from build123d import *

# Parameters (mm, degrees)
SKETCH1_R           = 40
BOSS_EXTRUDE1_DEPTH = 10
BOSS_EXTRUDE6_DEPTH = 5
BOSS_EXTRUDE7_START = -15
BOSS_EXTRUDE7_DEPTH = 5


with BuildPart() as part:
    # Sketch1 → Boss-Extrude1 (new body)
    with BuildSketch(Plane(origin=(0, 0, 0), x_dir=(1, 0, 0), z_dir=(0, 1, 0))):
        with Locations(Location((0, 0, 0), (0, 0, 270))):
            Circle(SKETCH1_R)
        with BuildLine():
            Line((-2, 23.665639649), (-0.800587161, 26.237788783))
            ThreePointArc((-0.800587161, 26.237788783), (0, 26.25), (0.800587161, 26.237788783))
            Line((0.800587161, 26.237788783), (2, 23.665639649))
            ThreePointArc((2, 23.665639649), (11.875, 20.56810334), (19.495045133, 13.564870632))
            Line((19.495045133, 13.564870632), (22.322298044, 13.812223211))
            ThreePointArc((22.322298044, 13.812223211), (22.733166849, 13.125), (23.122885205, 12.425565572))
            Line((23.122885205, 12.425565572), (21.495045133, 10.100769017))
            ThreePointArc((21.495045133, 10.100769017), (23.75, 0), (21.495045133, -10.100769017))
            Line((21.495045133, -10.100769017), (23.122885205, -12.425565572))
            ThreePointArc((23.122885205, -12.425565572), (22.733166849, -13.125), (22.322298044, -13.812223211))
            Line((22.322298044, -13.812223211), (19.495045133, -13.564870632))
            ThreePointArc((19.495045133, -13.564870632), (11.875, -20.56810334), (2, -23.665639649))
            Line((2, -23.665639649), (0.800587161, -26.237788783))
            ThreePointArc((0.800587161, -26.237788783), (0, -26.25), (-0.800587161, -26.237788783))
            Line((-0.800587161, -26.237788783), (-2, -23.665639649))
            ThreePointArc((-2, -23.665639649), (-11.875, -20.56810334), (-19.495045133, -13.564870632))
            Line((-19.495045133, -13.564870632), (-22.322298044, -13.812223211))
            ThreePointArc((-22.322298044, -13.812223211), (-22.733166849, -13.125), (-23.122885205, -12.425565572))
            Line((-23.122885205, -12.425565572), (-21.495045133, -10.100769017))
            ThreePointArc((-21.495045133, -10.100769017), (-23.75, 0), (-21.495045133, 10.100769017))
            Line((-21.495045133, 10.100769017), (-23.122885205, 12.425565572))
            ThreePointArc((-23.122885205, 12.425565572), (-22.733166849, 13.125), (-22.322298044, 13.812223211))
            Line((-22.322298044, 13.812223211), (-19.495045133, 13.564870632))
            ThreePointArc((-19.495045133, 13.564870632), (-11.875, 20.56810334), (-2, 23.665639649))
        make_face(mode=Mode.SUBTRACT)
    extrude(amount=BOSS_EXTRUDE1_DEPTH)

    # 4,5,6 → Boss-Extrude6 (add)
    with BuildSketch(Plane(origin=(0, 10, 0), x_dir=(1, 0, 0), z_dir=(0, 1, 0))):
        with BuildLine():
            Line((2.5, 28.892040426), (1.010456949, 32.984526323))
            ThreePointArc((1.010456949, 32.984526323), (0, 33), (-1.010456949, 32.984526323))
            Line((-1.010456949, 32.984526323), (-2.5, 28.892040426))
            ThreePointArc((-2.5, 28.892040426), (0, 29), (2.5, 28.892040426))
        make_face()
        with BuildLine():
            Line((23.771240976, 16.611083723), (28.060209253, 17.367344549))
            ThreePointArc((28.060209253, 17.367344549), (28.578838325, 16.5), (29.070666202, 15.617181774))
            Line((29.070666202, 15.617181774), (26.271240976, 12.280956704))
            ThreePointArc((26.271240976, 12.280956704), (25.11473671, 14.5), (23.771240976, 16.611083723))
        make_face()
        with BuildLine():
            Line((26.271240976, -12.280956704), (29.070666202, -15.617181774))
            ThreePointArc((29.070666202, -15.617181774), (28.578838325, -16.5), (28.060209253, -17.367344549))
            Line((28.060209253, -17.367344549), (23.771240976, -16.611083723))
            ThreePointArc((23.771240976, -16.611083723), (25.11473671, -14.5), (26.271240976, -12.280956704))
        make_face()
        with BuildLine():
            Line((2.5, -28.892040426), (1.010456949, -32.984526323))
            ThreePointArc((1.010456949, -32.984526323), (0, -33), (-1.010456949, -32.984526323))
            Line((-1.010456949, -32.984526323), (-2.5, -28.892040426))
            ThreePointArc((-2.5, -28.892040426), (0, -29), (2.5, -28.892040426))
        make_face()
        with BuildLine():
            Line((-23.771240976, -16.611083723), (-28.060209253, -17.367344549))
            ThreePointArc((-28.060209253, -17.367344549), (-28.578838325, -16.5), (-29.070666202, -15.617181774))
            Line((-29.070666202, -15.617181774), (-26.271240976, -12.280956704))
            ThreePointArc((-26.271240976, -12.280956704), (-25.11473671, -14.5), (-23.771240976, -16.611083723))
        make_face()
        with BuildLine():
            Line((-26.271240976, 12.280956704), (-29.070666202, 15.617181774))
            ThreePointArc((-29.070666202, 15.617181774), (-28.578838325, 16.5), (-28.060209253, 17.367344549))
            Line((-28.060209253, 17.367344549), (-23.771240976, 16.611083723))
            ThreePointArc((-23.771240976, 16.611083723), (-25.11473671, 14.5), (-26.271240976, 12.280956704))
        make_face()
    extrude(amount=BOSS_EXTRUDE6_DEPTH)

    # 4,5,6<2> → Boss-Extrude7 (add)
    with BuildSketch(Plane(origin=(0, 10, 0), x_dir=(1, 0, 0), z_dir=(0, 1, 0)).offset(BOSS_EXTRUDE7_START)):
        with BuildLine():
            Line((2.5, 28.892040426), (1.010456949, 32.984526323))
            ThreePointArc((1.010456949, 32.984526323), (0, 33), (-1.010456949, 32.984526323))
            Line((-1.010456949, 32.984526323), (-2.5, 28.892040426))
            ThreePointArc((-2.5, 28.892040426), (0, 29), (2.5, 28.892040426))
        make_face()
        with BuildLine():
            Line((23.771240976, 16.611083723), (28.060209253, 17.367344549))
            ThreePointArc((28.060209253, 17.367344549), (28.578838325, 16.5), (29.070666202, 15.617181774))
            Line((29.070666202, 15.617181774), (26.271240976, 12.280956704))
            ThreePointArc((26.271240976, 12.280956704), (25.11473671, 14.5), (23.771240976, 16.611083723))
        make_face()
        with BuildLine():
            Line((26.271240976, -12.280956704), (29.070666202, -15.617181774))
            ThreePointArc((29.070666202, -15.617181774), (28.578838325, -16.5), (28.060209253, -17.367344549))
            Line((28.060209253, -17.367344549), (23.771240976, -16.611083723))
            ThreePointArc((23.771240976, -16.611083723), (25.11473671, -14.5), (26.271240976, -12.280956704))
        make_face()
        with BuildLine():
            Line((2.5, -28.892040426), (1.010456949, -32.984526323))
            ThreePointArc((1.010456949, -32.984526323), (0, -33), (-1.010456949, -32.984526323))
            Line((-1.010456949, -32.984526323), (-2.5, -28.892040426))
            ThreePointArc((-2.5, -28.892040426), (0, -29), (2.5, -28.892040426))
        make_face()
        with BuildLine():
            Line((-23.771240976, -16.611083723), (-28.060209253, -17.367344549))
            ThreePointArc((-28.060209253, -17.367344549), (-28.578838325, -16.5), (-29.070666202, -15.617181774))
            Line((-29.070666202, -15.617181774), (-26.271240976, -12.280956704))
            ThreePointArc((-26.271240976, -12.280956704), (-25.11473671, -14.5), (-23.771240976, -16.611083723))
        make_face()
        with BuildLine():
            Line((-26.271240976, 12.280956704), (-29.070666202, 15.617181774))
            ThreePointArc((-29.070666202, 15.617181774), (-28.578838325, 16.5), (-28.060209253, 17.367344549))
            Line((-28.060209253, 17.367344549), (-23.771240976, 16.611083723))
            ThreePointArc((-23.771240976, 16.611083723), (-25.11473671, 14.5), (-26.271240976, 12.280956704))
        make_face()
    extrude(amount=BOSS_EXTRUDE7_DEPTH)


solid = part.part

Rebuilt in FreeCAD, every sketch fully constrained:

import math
import FreeCAD as App
import Part
import Sketcher

V = App.Vector
Q = App.Units.Quantity

doc = App.newDocument("Part")
params = doc.addObject("Spreadsheet::Sheet", "Params")
for row, (alias, value) in enumerate([
    ("sketch1_diameter", "80 mm"),
    ("sketch1_radius", "23.75 mm"),
    ("sketch1_radius2", "26.250001 mm"),
    ("pad1_length", "10 mm"),
    ("sketch2_radius", "33 mm"),
    ("sketch2_radius2", "29 mm"),
    ("pad2_length", "5 mm"),
    ("sketch3_radius", "33 mm"),
    ("sketch3_radius2", "29 mm"),
    ("pad3_length", "5 mm"),
], start=1):
    params.set(f"A{row}", alias)
    params.set(f"B{row}", "=" + value)
    params.setAlias(f"B{row}", alias)

body = doc.addObject("PartDesign::Body", "Body")

# Sketch on XZ plane
sketch1 = doc.addObject("Sketcher::SketchObject", "Sketch")
body.addObject(sketch1)
sketch1.AttachmentSupport = (doc.XZ_Plane, [""])
sketch1.MapMode = "FlatFace"
sketch1.addGeometry([
    Part.Circle(V(0, 0, 0), V(0, 0, 1), 40),  # 0
    Part.ArcOfCircle(Part.Circle(V(0, 0, 0), V(0, 0, 1), 23.7), math.radians(-145), math.radians(-95)),  # 1
    Part.LineSegment(V(-2, -23.7, 0), V(-0.8, -26.2, 0)),  # 2
    Part.ArcOfCircle(Part.Circle(V(0, 0, 0), V(0, 0, 1), 26.3), math.radians(-91.75), math.radians(-88.25)),  # 3
    Part.LineSegment(V(0.8, -26.2, 0), V(2, -23.7, 0)),  # 4
    Part.ArcOfCircle(Part.Circle(V(0, 0, 0), V(0, 0, 1), 23.7), math.radians(-85), math.radians(-35)),  # 5
    Part.LineSegment(V(19.5, -13.6, 0), V(22.3, -13.8, 0)),  # 6
    Part.ArcOfCircle(Part.Circle(V(0, 0, 0), V(0, 0, 1), 26.3), math.radians(-31.75), math.radians(-28.25)),  # 7
    Part.LineSegment(V(23.1, -12.4, 0), V(21.5, -10.1, 0)),  # 8
    Part.ArcOfCircle(Part.Circle(V(0, 0, 0), V(0, 0, 1), 23.8), math.radians(-25), math.radians(25)),  # 9
    Part.LineSegment(V(21.5, 10.1, 0), V(23.1, 12.4, 0)),  # 10
    Part.ArcOfCircle(Part.Circle(V(0, 0, 0), V(0, 0, 1), 26.3), math.radians(28.25), math.radians(31.75)),  # 11
    Part.LineSegment(V(22.3, 13.8, 0), V(19.5, 13.6, 0)),  # 12
    Part.ArcOfCircle(Part.Circle(V(0, 0, 0), V(0, 0, 1), 23.7), math.radians(35), math.radians(85)),  # 13
    Part.LineSegment(V(2, 23.7, 0), V(0.8, 26.2, 0)),  # 14
    Part.ArcOfCircle(Part.Circle(V(0, 0, 0), V(0, 0, 1), 26.3), math.radians(88.25), math.radians(91.75)),  # 15
    Part.LineSegment(V(-0.8, 26.2, 0), V(-2, 23.7, 0)),  # 16
    Part.ArcOfCircle(Part.Circle(V(0, 0, 0), V(0, 0, 1), 23.7), math.radians(95), math.radians(145)),  # 17
    Part.LineSegment(V(-19.5, 13.6, 0), V(-22.3, 13.8, 0)),  # 18
    Part.ArcOfCircle(Part.Circle(V(0, 0, 0), V(0, 0, 1), 26.3), math.radians(148.25), math.radians(151.75)),  # 19
    Part.LineSegment(V(-23.1, 12.4, 0), V(-21.5, 10.1, 0)),  # 20
    Part.ArcOfCircle(Part.Circle(V(0, 0, 0), V(0, 0, 1), 23.8), math.radians(155), math.radians(205)),  # 21
    Part.LineSegment(V(-21.5, -10.1, 0), V(-23.1, -12.4, 0)),  # 22
    Part.ArcOfCircle(Part.Circle(V(0, 0, 0), V(0, 0, 1), 26.3), math.radians(-151.75), math.radians(-148.25)),  # 23
    Part.LineSegment(V(-22.3, -13.8, 0), V(-19.5, -13.6, 0)),  # 24
], False)
sketch1.addConstraint([
    Sketcher.Constraint("Coincident", 1, 2, 2, 1),
    Sketcher.Constraint("Coincident", 2, 2, 3, 1),
    Sketcher.Constraint("Coincident", 3, 2, 4, 1),
    Sketcher.Constraint("Coincident", 4, 2, 5, 1),
    Sketcher.Constraint("Coincident", 5, 2, 6, 1),
    Sketcher.Constraint("Coincident", 6, 2, 7, 1),
    Sketcher.Constraint("Coincident", 7, 2, 8, 1),
    Sketcher.Constraint("Coincident", 8, 2, 9, 1),
    Sketcher.Constraint("Coincident", 9, 2, 10, 1),
    Sketcher.Constraint("Coincident", 10, 2, 11, 1),
    Sketcher.Constraint("Coincident", 11, 2, 12, 1),
    Sketcher.Constraint("Coincident", 12, 2, 13, 1),
    Sketcher.Constraint("Coincident", 13, 2, 14, 1),
    Sketcher.Constraint("Coincident", 14, 2, 15, 1),
    Sketcher.Constraint("Coincident", 15, 2, 16, 1),
    Sketcher.Constraint("Coincident", 16, 2, 17, 1),
    Sketcher.Constraint("Coincident", 17, 2, 18, 1),
    Sketcher.Constraint("Coincident", 18, 2, 19, 1),
    Sketcher.Constraint("Coincident", 19, 2, 20, 1),
    Sketcher.Constraint("Coincident", 20, 2, 21, 1),
    Sketcher.Constraint("Coincident", 21, 2, 22, 1),
    Sketcher.Constraint("Coincident", 22, 2, 23, 1),
    Sketcher.Constraint("Coincident", 23, 2, 24, 1),
    Sketcher.Constraint("Coincident", 24, 2, 1, 1),
    Sketcher.Constraint("Coincident", 0, 3, -1, 1),
    Sketcher.Constraint("Coincident", 1, 3, -1, 1),
    Sketcher.Constraint("Coincident", 3, 3, -1, 1),
    Sketcher.Constraint("Coincident", 5, 3, -1, 1),
    Sketcher.Constraint("Coincident", 7, 3, -1, 1),
    Sketcher.Constraint("Coincident", 9, 3, -1, 1),
    Sketcher.Constraint("Coincident", 11, 3, -1, 1),
    Sketcher.Constraint("Coincident", 13, 3, -1, 1),
    Sketcher.Constraint("Coincident", 15, 3, -1, 1),
    Sketcher.Constraint("Coincident", 17, 3, -1, 1),
    Sketcher.Constraint("Coincident", 19, 3, -1, 1),
    Sketcher.Constraint("Coincident", 21, 3, -1, 1),
    Sketcher.Constraint("Coincident", 23, 3, -1, 1),
    Sketcher.Constraint("Equal", 1, 5),
    Sketcher.Constraint("Equal", 3, 7),
    Sketcher.Constraint("Equal", 5, 9),
    Sketcher.Constraint("Equal", 7, 11),
    Sketcher.Constraint("Equal", 9, 13),
    Sketcher.Constraint("Equal", 11, 15),
    Sketcher.Constraint("Equal", 13, 17),
    Sketcher.Constraint("Equal", 15, 19),
    Sketcher.Constraint("Equal", 17, 21),
    Sketcher.Constraint("Equal", 19, 23),
    Sketcher.Constraint("Parallel", 2, 14),
    Sketcher.Constraint("Parallel", 4, 16),
    Sketcher.Constraint("Parallel", 6, 18),
    Sketcher.Constraint("Parallel", 8, 20),
    Sketcher.Constraint("Parallel", 10, 22),
    Sketcher.Constraint("Parallel", 12, 24),
    Sketcher.Constraint("Horizontal", 2, 2, 3, 2),
    Sketcher.Constraint("Horizontal", 1, 2, 4, 2),
    Sketcher.Constraint("Horizontal", 14, 2, 15, 2),
    Sketcher.Constraint("Horizontal", 12, 2, 17, 2),
    Sketcher.Constraint("Horizontal", 11, 2, 18, 2),
    Sketcher.Constraint("Horizontal", 10, 2, 19, 2),
    Sketcher.Constraint("Horizontal", 9, 2, 20, 2),
    Sketcher.Constraint("Horizontal", 8, 2, 21, 2),
    Sketcher.Constraint("Horizontal", 6, 2, 23, 2),
    Sketcher.Constraint("Vertical", 8, 2, 9, 2),
    Sketcher.Constraint("Vertical", 6, 2, 11, 2),
    Sketcher.Constraint("Vertical", 4, 2, 13, 2),
    Sketcher.Constraint("Equal", 4, 6),
    Sketcher.Constraint("Equal", 6, 8),
    Sketcher.Constraint("Diameter", 0, 80.0),
    Sketcher.Constraint("Angle", 2, Q("-65 deg")),
    Sketcher.Constraint("Angle", 6, Q("-5 deg")),
    Sketcher.Constraint("Angle", 8, Q("125 deg")),
    Sketcher.Constraint("Radius", 1, 23.75),
    Sketcher.Constraint("Radius", 3, 26.250001),
    Sketcher.Constraint("DistanceX", 1, 2, -1, 1, 2.0),
])
sketch1.setExpression("Constraints[67]", "Params.sketch1_diameter")
sketch1.setExpression("Constraints[71]", "Params.sketch1_radius")
sketch1.setExpression("Constraints[72]", "Params.sketch1_radius2")
pad1 = doc.addObject("PartDesign::Pad", "Pad")
body.addObject(pad1)
pad1.Profile = sketch1
pad1.setExpression("Length", "Params.pad1_length")
pad1.Reversed = True

# Sketch on XZ plane
sketch2 = doc.addObject("Sketcher::SketchObject", "Sketch001")
body.addObject(sketch2)
sketch2.AttachmentSupport = (doc.XZ_Plane, [""])
sketch2.MapMode = "FlatFace"
sketch2.AttachmentOffset = App.Placement(V(0, 0, -10), App.Rotation())
sketch2.addGeometry([
    Part.LineSegment(V(2.5, -28.9, 0), V(1, -33, 0)),  # 0
    Part.ArcOfCircle(Part.Circle(V(0, 0, 0), V(0, 0, 1), 33), math.radians(-91.75), math.radians(-88.25)),  # 1
    Part.LineSegment(V(-1, -33, 0), V(-2.5, -28.9, 0)),  # 2
    Part.ArcOfCircle(Part.Circle(V(0, 0, 0), V(0, 0, 1), 29), math.radians(-94.95), math.radians(-85.05)),  # 3
    Part.LineSegment(V(28.1, -17.4, 0), V(23.8, -16.6, 0)),  # 4
    Part.ArcOfCircle(Part.Circle(V(0, 0, 0), V(0, 0, 1), 29), math.radians(-34.95), math.radians(-25.05)),  # 5
    Part.LineSegment(V(26.3, -12.3, 0), V(29.1, -15.6, 0)),  # 6
    Part.ArcOfCircle(Part.Circle(V(0, 0, 0), V(0, 0, 1), 33), math.radians(-31.75), math.radians(-28.25)),  # 7
    Part.LineSegment(V(29.1, 15.6, 0), V(26.3, 12.3, 0)),  # 8
    Part.ArcOfCircle(Part.Circle(V(0, 0, 0), V(0, 0, 1), 29), math.radians(25.05), math.radians(34.95)),  # 9
    Part.LineSegment(V(23.8, 16.6, 0), V(28.1, 17.4, 0)),  # 10
    Part.ArcOfCircle(Part.Circle(V(0, 0, 0), V(0, 0, 1), 33), math.radians(28.25), math.radians(31.75)),  # 11
    Part.LineSegment(V(1, 33, 0), V(2.5, 28.9, 0)),  # 12
    Part.ArcOfCircle(Part.Circle(V(0, 0, 0), V(0, 0, 1), 29), math.radians(85.05), math.radians(94.95)),  # 13
    Part.LineSegment(V(-2.5, 28.9, 0), V(-1, 33, 0)),  # 14
    Part.ArcOfCircle(Part.Circle(V(0, 0, 0), V(0, 0, 1), 33), math.radians(88.25), math.radians(91.75)),  # 15
    Part.LineSegment(V(-28.1, 17.4, 0), V(-23.8, 16.6, 0)),  # 16
    Part.ArcOfCircle(Part.Circle(V(0, 0, 0), V(0, 0, 1), 29), math.radians(145.05), math.radians(154.95)),  # 17
    Part.LineSegment(V(-26.3, 12.3, 0), V(-29.1, 15.6, 0)),  # 18
    Part.ArcOfCircle(Part.Circle(V(0, 0, 0), V(0, 0, 1), 33), math.radians(148.25), math.radians(151.75)),  # 19
    Part.LineSegment(V(-29.1, -15.6, 0), V(-26.3, -12.3, 0)),  # 20
    Part.ArcOfCircle(Part.Circle(V(0, 0, 0), V(0, 0, 1), 29), math.radians(-154.95), math.radians(-145.05)),  # 21
    Part.LineSegment(V(-23.8, -16.6, 0), V(-28.1, -17.4, 0)),  # 22
    Part.ArcOfCircle(Part.Circle(V(0, 0, 0), V(0, 0, 1), 33), math.radians(-151.75), math.radians(-148.25)),  # 23
], False)
sketch2.addConstraint([
    Sketcher.Constraint("Coincident", 0, 2, 1, 2),
    Sketcher.Constraint("Coincident", 1, 1, 2, 1),
    Sketcher.Constraint("Coincident", 2, 2, 3, 1),
    Sketcher.Constraint("Coincident", 3, 2, 0, 1),
    Sketcher.Constraint("Coincident", 4, 2, 5, 1),
    Sketcher.Constraint("Coincident", 5, 2, 6, 1),
    Sketcher.Constraint("Coincident", 6, 2, 7, 2),
    Sketcher.Constraint("Coincident", 7, 1, 4, 1),
    Sketcher.Constraint("Coincident", 8, 2, 9, 1),
    Sketcher.Constraint("Coincident", 9, 2, 10, 1),
    Sketcher.Constraint("Coincident", 10, 2, 11, 2),
    Sketcher.Constraint("Coincident", 11, 1, 8, 1),
    Sketcher.Constraint("Coincident", 12, 2, 13, 1),
    Sketcher.Constraint("Coincident", 13, 2, 14, 1),
    Sketcher.Constraint("Coincident", 14, 2, 15, 2),
    Sketcher.Constraint("Coincident", 15, 1, 12, 1),
    Sketcher.Constraint("Coincident", 16, 2, 17, 1),
    Sketcher.Constraint("Coincident", 17, 2, 18, 1),
    Sketcher.Constraint("Coincident", 18, 2, 19, 2),
    Sketcher.Constraint("Coincident", 19, 1, 16, 1),
    Sketcher.Constraint("Coincident", 20, 2, 21, 1),
    Sketcher.Constraint("Coincident", 21, 2, 22, 1),
    Sketcher.Constraint("Coincident", 22, 2, 23, 2),
    Sketcher.Constraint("Coincident", 23, 1, 20, 1),
    Sketcher.Constraint("Coincident", 1, 3, -1, 1),
    Sketcher.Constraint("Coincident", 3, 3, -1, 1),
    Sketcher.Constraint("Coincident", 5, 3, -1, 1),
    Sketcher.Constraint("Coincident", 7, 3, -1, 1),
    Sketcher.Constraint("Coincident", 9, 3, -1, 1),
    Sketcher.Constraint("Coincident", 11, 3, -1, 1),
    Sketcher.Constraint("Coincident", 13, 3, -1, 1),
    Sketcher.Constraint("Coincident", 15, 3, -1, 1),
    Sketcher.Constraint("Coincident", 17, 3, -1, 1),
    Sketcher.Constraint("Coincident", 19, 3, -1, 1),
    Sketcher.Constraint("Coincident", 21, 3, -1, 1),
    Sketcher.Constraint("Coincident", 23, 3, -1, 1),
    Sketcher.Constraint("Equal", 3, 5),
    Sketcher.Constraint("Equal", 1, 7),
    Sketcher.Constraint("Equal", 5, 9),
    Sketcher.Constraint("Equal", 7, 11),
    Sketcher.Constraint("Equal", 9, 13),
    Sketcher.Constraint("Equal", 11, 15),
    Sketcher.Constraint("Equal", 13, 17),
    Sketcher.Constraint("Equal", 15, 19),
    Sketcher.Constraint("Equal", 17, 21),
    Sketcher.Constraint("Equal", 19, 23),
    Sketcher.Constraint("Parallel", 2, 12),
    Sketcher.Constraint("Parallel", 0, 14),
    Sketcher.Constraint("Parallel", 4, 16),
    Sketcher.Constraint("Parallel", 6, 18),
    Sketcher.Constraint("Parallel", 8, 20),
    Sketcher.Constraint("Parallel", 10, 22),
    Sketcher.Constraint("Horizontal", 0, 2, 1, 1),
    Sketcher.Constraint("Horizontal", 2, 2, 3, 2),
    Sketcher.Constraint("Horizontal", 12, 2, 13, 2),
    Sketcher.Constraint("Horizontal", 9, 2, 16, 2),
    Sketcher.Constraint("Horizontal", 8, 2, 17, 2),
    Sketcher.Constraint("Horizontal", 11, 1, 18, 2),
    Sketcher.Constraint("Horizontal", 10, 2, 19, 1),
    Sketcher.Constraint("Horizontal", 5, 2, 20, 2),
    Sketcher.Constraint("Horizontal", 4, 2, 21, 2),
    Sketcher.Constraint("Vertical", 5, 2, 8, 2),
    Sketcher.Constraint("Vertical", 4, 2, 9, 2),
    Sketcher.Constraint("Vertical", 3, 2, 12, 2),
    Sketcher.Constraint("Equal", 2, 4),
    Sketcher.Constraint("Equal", 4, 6),
    Sketcher.Constraint("Radius", 1, 33.0),
    Sketcher.Constraint("Radius", 3, 29.0),
    Sketcher.Constraint("Angle", 0, Q("-110 deg")),
    Sketcher.Constraint("Angle", 4, Q("170 deg")),
    Sketcher.Constraint("Angle", 6, Q("-50 deg")),
    Sketcher.Constraint("DistanceX", 2, 2, 3, 2, 5.0),
])
sketch2.setExpression("Constraints[66]", "Params.sketch2_radius")
sketch2.setExpression("Constraints[67]", "Params.sketch2_radius2")
pad2 = doc.addObject("PartDesign::Pad", "Pad001")
body.addObject(pad2)
pad2.Profile = sketch2
pad2.setExpression("Length", "Params.pad2_length")
pad2.Reversed = True

# Sketch on XZ plane
sketch3 = doc.addObject("Sketcher::SketchObject", "Sketch002")
body.addObject(sketch3)
sketch3.AttachmentSupport = (doc.XZ_Plane, [""])
sketch3.MapMode = "FlatFace"
sketch3.AttachmentOffset = App.Placement(V(0, 0, 5), App.Rotation())
sketch3.addGeometry([
    Part.LineSegment(V(2.5, -28.9, 0), V(1, -33, 0)),  # 0
    Part.ArcOfCircle(Part.Circle(V(0, 0, 0), V(0, 0, 1), 33), math.radians(-91.75), math.radians(-88.25)),  # 1
    Part.LineSegment(V(-1, -33, 0), V(-2.5, -28.9, 0)),  # 2
    Part.ArcOfCircle(Part.Circle(V(0, 0, 0), V(0, 0, 1), 29), math.radians(-94.95), math.radians(-85.05)),  # 3
    Part.LineSegment(V(28.1, -17.4, 0), V(23.8, -16.6, 0)),  # 4
    Part.ArcOfCircle(Part.Circle(V(0, 0, 0), V(0, 0, 1), 29), math.radians(-34.95), math.radians(-25.05)),  # 5
    Part.LineSegment(V(26.3, -12.3, 0), V(29.1, -15.6, 0)),  # 6
    Part.ArcOfCircle(Part.Circle(V(0, 0, 0), V(0, 0, 1), 33), math.radians(-31.75), math.radians(-28.25)),  # 7
    Part.LineSegment(V(29.1, 15.6, 0), V(26.3, 12.3, 0)),  # 8
    Part.ArcOfCircle(Part.Circle(V(0, 0, 0), V(0, 0, 1), 29), math.radians(25.05), math.radians(34.95)),  # 9
    Part.LineSegment(V(23.8, 16.6, 0), V(28.1, 17.4, 0)),  # 10
    Part.ArcOfCircle(Part.Circle(V(0, 0, 0), V(0, 0, 1), 33), math.radians(28.25), math.radians(31.75)),  # 11
    Part.LineSegment(V(1, 33, 0), V(2.5, 28.9, 0)),  # 12
    Part.ArcOfCircle(Part.Circle(V(0, 0, 0), V(0, 0, 1), 29), math.radians(85.05), math.radians(94.95)),  # 13
    Part.LineSegment(V(-2.5, 28.9, 0), V(-1, 33, 0)),  # 14
    Part.ArcOfCircle(Part.Circle(V(0, 0, 0), V(0, 0, 1), 33), math.radians(88.25), math.radians(91.75)),  # 15
    Part.LineSegment(V(-28.1, 17.4, 0), V(-23.8, 16.6, 0)),  # 16
    Part.ArcOfCircle(Part.Circle(V(0, 0, 0), V(0, 0, 1), 29), math.radians(145.05), math.radians(154.95)),  # 17
    Part.LineSegment(V(-26.3, 12.3, 0), V(-29.1, 15.6, 0)),  # 18
    Part.ArcOfCircle(Part.Circle(V(0, 0, 0), V(0, 0, 1), 33), math.radians(148.25), math.radians(151.75)),  # 19
    Part.LineSegment(V(-29.1, -15.6, 0), V(-26.3, -12.3, 0)),  # 20
    Part.ArcOfCircle(Part.Circle(V(0, 0, 0), V(0, 0, 1), 29), math.radians(-154.95), math.radians(-145.05)),  # 21
    Part.LineSegment(V(-23.8, -16.6, 0), V(-28.1, -17.4, 0)),  # 22
    Part.ArcOfCircle(Part.Circle(V(0, 0, 0), V(0, 0, 1), 33), math.radians(-151.75), math.radians(-148.25)),  # 23
], False)
sketch3.addConstraint([
    Sketcher.Constraint("Coincident", 0, 2, 1, 2),
    Sketcher.Constraint("Coincident", 1, 1, 2, 1),
    Sketcher.Constraint("Coincident", 2, 2, 3, 1),
    Sketcher.Constraint("Coincident", 3, 2, 0, 1),
    Sketcher.Constraint("Coincident", 4, 2, 5, 1),
    Sketcher.Constraint("Coincident", 5, 2, 6, 1),
    Sketcher.Constraint("Coincident", 6, 2, 7, 2),
    Sketcher.Constraint("Coincident", 7, 1, 4, 1),
    Sketcher.Constraint("Coincident", 8, 2, 9, 1),
    Sketcher.Constraint("Coincident", 9, 2, 10, 1),
    Sketcher.Constraint("Coincident", 10, 2, 11, 2),
    Sketcher.Constraint("Coincident", 11, 1, 8, 1),
    Sketcher.Constraint("Coincident", 12, 2, 13, 1),
    Sketcher.Constraint("Coincident", 13, 2, 14, 1),
    Sketcher.Constraint("Coincident", 14, 2, 15, 2),
    Sketcher.Constraint("Coincident", 15, 1, 12, 1),
    Sketcher.Constraint("Coincident", 16, 2, 17, 1),
    Sketcher.Constraint("Coincident", 17, 2, 18, 1),
    Sketcher.Constraint("Coincident", 18, 2, 19, 2),
    Sketcher.Constraint("Coincident", 19, 1, 16, 1),
    Sketcher.Constraint("Coincident", 20, 2, 21, 1),
    Sketcher.Constraint("Coincident", 21, 2, 22, 1),
    Sketcher.Constraint("Coincident", 22, 2, 23, 2),
    Sketcher.Constraint("Coincident", 23, 1, 20, 1),
    Sketcher.Constraint("Coincident", 1, 3, -1, 1),
    Sketcher.Constraint("Coincident", 3, 3, -1, 1),
    Sketcher.Constraint("Coincident", 5, 3, -1, 1),
    Sketcher.Constraint("Coincident", 7, 3, -1, 1),
    Sketcher.Constraint("Coincident", 9, 3, -1, 1),
    Sketcher.Constraint("Coincident", 11, 3, -1, 1),
    Sketcher.Constraint("Coincident", 13, 3, -1, 1),
    Sketcher.Constraint("Coincident", 15, 3, -1, 1),
    Sketcher.Constraint("Coincident", 17, 3, -1, 1),
    Sketcher.Constraint("Coincident", 19, 3, -1, 1),
    Sketcher.Constraint("Coincident", 21, 3, -1, 1),
    Sketcher.Constraint("Coincident", 23, 3, -1, 1),
    Sketcher.Constraint("Equal", 3, 5),
    Sketcher.Constraint("Equal", 1, 7),
    Sketcher.Constraint("Equal", 5, 9),
    Sketcher.Constraint("Equal", 7, 11),
    Sketcher.Constraint("Equal", 9, 13),
    Sketcher.Constraint("Equal", 11, 15),
    Sketcher.Constraint("Equal", 13, 17),
    Sketcher.Constraint("Equal", 15, 19),
    Sketcher.Constraint("Equal", 17, 21),
    Sketcher.Constraint("Equal", 19, 23),
    Sketcher.Constraint("Parallel", 2, 12),
    Sketcher.Constraint("Parallel", 0, 14),
    Sketcher.Constraint("Parallel", 4, 16),
    Sketcher.Constraint("Parallel", 6, 18),
    Sketcher.Constraint("Parallel", 8, 20),
    Sketcher.Constraint("Parallel", 10, 22),
    Sketcher.Constraint("Horizontal", 0, 2, 1, 1),
    Sketcher.Constraint("Horizontal", 2, 2, 3, 2),
    Sketcher.Constraint("Horizontal", 12, 2, 13, 2),
    Sketcher.Constraint("Horizontal", 9, 2, 16, 2),
    Sketcher.Constraint("Horizontal", 8, 2, 17, 2),
    Sketcher.Constraint("Horizontal", 11, 1, 18, 2),
    Sketcher.Constraint("Horizontal", 10, 2, 19, 1),
    Sketcher.Constraint("Horizontal", 5, 2, 20, 2),
    Sketcher.Constraint("Horizontal", 4, 2, 21, 2),
    Sketcher.Constraint("Vertical", 5, 2, 8, 2),
    Sketcher.Constraint("Vertical", 4, 2, 9, 2),
    Sketcher.Constraint("Vertical", 3, 2, 12, 2),
    Sketcher.Constraint("Equal", 2, 4),
    Sketcher.Constraint("Equal", 4, 6),
    Sketcher.Constraint("Radius", 1, 33.0),
    Sketcher.Constraint("Radius", 3, 29.0),
    Sketcher.Constraint("Angle", 0, Q("-110 deg")),
    Sketcher.Constraint("Angle", 4, Q("170 deg")),
    Sketcher.Constraint("Angle", 6, Q("-50 deg")),
    Sketcher.Constraint("DistanceX", 2, 2, 3, 2, 5.0),
])
sketch3.setExpression("Constraints[66]", "Params.sketch3_radius")
sketch3.setExpression("Constraints[67]", "Params.sketch3_radius2")
pad3 = doc.addObject("PartDesign::Pad", "Pad002")
body.addObject(pad3)
pad3.Profile = sketch3
pad3.setExpression("Length", "Params.pad3_length")
pad3.Reversed = True

doc.recompute()
